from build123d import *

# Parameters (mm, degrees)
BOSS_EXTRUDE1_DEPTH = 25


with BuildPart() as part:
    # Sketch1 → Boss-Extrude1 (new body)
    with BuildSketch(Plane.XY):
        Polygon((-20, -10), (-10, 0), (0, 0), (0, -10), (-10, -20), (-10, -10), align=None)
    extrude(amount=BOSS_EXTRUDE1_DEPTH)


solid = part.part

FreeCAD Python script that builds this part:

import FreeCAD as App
import Part
import Sketcher
Q = App.Units.Quantity

doc = App.newDocument("Part")
body = doc.addObject("PartDesign::Body", "Body")

# Sketch on XY plane
sketch1 = body.newObject("Sketcher::SketchObject", "Sketch")
sketch1.AttachmentSupport = (doc.getObject("XY_Plane"), [""])
sketch1.MapMode = "FlatFace"
sketch1.addGeometry([
    Part.LineSegment(App.Vector(-10, 0, 0), App.Vector(-20, -10, 0)),  # 0
    Part.LineSegment(App.Vector(-20, -10, 0), App.Vector(-10, -10, 0)),  # 1
    Part.LineSegment(App.Vector(-10, -10, 0), App.Vector(-10, -20, 0)),  # 2
    Part.LineSegment(App.Vector(-10, -20, 0), App.Vector(0, -10, 0)),  # 3
    Part.LineSegment(App.Vector(0, -10, 0), App.Vector(0, 0, 0)),  # 4
    Part.LineSegment(App.Vector(0, 0, 0), App.Vector(-10, 0, 0)),  # 5
], False)
sketch1.addConstraint([
    Sketcher.Constraint("Coincident", 0, 2, 1, 1),
    Sketcher.Constraint("Coincident", 1, 2, 2, 1),
    Sketcher.Constraint("Coincident", 2, 2, 3, 1),
    Sketcher.Constraint("Coincident", 3, 2, 4, 1),
    Sketcher.Constraint("Coincident", 4, 2, 5, 1),
    Sketcher.Constraint("Coincident", 5, 2, 0, 1),
    Sketcher.Constraint("Horizontal", 1),
    Sketcher.Constraint("Vertical", 2),
    Sketcher.Constraint("Vertical", 4),
    Sketcher.Constraint("Horizontal", 5),
    Sketcher.Constraint("Coincident", 4, 2, -1, 1),
    Sketcher.Constraint("Parallel", 0, 3),
    Sketcher.Constraint("Horizontal", 1, 2, 3, 2),
    Sketcher.Constraint("Vertical", 2, 2, 5, 2),
    Sketcher.Constraint("Equal", 1, 5),
    Sketcher.Constraint("Equal", 5, 2),
    Sketcher.Constraint("DistanceX", 1, 1, 1, 2, Q("10 mm")),
])
pad1 = body.newObject("PartDesign::Pad", "Pad")
pad1.Profile = sketch1
pad1.Length = 25

doc.recompute()
